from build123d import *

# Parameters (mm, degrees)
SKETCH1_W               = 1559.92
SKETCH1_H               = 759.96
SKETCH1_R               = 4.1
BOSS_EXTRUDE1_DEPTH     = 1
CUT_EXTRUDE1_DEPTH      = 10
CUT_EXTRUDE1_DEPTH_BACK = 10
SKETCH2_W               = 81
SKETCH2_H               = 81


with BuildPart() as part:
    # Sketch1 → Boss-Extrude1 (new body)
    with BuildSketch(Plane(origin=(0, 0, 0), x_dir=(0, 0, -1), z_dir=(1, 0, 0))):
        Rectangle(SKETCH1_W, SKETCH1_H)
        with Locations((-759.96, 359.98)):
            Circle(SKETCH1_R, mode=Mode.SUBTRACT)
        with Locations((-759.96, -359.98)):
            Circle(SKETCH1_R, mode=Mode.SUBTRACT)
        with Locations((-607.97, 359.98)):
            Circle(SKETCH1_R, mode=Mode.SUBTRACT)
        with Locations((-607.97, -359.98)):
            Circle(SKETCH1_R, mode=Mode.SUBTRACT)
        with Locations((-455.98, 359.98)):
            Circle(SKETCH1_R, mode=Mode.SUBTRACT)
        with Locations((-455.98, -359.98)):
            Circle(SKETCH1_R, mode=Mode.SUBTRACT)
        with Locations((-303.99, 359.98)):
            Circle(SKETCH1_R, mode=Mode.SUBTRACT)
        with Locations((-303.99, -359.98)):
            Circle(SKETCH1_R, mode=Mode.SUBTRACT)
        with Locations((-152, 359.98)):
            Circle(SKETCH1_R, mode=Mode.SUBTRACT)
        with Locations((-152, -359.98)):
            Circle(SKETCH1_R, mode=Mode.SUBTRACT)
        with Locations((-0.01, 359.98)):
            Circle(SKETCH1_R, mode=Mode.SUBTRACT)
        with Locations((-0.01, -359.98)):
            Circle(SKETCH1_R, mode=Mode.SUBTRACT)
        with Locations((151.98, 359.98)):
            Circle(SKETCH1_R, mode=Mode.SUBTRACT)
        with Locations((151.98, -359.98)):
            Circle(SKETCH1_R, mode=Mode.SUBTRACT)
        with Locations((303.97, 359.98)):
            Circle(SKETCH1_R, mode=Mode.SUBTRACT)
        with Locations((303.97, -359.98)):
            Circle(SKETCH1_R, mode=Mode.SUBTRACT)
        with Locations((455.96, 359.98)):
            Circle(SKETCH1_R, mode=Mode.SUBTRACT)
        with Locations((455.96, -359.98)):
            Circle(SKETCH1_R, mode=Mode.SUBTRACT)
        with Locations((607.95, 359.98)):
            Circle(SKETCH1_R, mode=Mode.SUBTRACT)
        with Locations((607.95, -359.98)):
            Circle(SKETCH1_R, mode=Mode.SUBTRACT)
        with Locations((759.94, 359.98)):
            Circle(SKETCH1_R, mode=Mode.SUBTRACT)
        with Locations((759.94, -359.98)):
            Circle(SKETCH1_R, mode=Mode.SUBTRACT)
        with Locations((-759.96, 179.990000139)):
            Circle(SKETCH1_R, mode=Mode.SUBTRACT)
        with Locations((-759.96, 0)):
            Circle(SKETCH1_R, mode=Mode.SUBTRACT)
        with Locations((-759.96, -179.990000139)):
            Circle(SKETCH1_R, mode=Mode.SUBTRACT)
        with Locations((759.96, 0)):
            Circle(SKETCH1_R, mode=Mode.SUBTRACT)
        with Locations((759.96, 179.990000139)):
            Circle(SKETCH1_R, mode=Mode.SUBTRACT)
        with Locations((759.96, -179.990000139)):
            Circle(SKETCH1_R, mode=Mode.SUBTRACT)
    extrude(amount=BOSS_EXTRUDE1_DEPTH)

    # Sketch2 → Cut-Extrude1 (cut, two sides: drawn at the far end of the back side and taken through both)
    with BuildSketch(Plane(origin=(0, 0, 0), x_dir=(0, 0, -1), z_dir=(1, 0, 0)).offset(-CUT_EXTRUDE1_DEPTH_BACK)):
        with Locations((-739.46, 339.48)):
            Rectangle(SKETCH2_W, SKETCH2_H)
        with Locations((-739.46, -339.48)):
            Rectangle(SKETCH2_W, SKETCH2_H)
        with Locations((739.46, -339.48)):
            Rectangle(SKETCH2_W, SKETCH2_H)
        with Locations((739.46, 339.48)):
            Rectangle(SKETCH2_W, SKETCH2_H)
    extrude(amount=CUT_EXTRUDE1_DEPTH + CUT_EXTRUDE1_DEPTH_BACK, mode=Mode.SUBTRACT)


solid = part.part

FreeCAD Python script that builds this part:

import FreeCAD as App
import Part
import Sketcher


def add_polygon(sketch, points):
    """Adds a closed chain of lines whose ends are joined by coincident constraints."""
    first, n = sketch.GeometryCount, len(points)
    for a, b in zip(points, points[1:] + points[:1]):
        sketch.addGeometry(Part.LineSegment(App.Vector(*a, 0), App.Vector(*b, 0)), False)
    for i in range(n):
        sketch.addConstraint(Sketcher.Constraint("Coincident", first + i, 2, first + (i + 1) % n, 1))

doc = App.newDocument("Part")
params = doc.addObject("Spreadsheet::Sheet", "Params")
for row, (alias, value) in enumerate([
    ("sketch1_diameter", "8.2 mm"),
    ("sketch1_width", "759.96 mm"),
    ("sketch1_height", "1559.92 mm"),
    ("pad1_length", "1 mm"),
    ("sketch2_width", "81 mm"),
], start=1):
    params.set(f"A{row}", alias)
    params.set(f"B{row}", "=" + value)
    params.setAlias(f"B{row}", alias)

body = doc.addObject("PartDesign::Body", "Body")

# Sketch on YZ plane
sketch1 = body.newObject("Sketcher::SketchObject", "Sketch")
sketch1.AttachmentSupport = (doc.getObject("YZ_Plane"), [""])
sketch1.MapMode = "FlatFace"
add_polygon(sketch1, [(380, 780), (-380, 780), (-380, -780), (380, -780)])  # lines 0-3
sketch1.addGeometry(Part.Circle(App.Vector(-360, 760, 0), App.Vector(0, 0, 1), 4.1), False)  # 4
sketch1.addGeometry(Part.Circle(App.Vector(-360, 608, 0), App.Vector(0, 0, 1), 4.1), False)  # 5
sketch1.addGeometry(Part.Circle(App.Vector(-360, 456, 0), App.Vector(0, 0, 1), 4.1), False)  # 6
sketch1.addGeometry(Part.Circle(App.Vector(-360, 304, 0), App.Vector(0, 0, 1), 4.1), False)  # 7
sketch1.addGeometry(Part.Circle(App.Vector(-360, 152, 0), App.Vector(0, 0, 1), 4.1), False)  # 8
sketch1.addGeometry(Part.Circle(App.Vector(-360, 0, 0), App.Vector(0, 0, 1), 4.1), False)  # 9
sketch1.addGeometry(Part.Circle(App.Vector(-180, 760, 0), App.Vector(0, 0, 1), 4.1), False)  # 10
sketch1.addGeometry(Part.Circle(App.Vector(-360, -152, 0), App.Vector(0, 0, 1), 4.1), False)  # 11
sketch1.addGeometry(Part.Circle(App.Vector(-360, -304, 0), App.Vector(0, 0, 1), 4.1), False)  # 12
sketch1.addGeometry(Part.Circle(App.Vector(-360, -456, 0), App.Vector(0, 0, 1), 4.1), False)  # 13
sketch1.addGeometry(Part.Circle(App.Vector(-360, -608, 0), App.Vector(0, 0, 1), 4.1), False)  # 14
sketch1.addGeometry(Part.Circle(App.Vector(-360, -759.9, 0), App.Vector(0, 0, 1), 4.1), False)  # 15
sketch1.addGeometry(Part.Circle(App.Vector(-180, -760, 0), App.Vector(0, 0, 1), 4.1), False)  # 16
sketch1.addGeometry(Part.Circle(App.Vector(0, 760, 0), App.Vector(0, 0, 1), 4.1), False)  # 17
sketch1.addGeometry(Part.Circle(App.Vector(180, 760, 0), App.Vector(0, 0, 1), 4.1), False)  # 18
sketch1.addGeometry(Part.Circle(App.Vector(360, 760, 0), App.Vector(0, 0, 1), 4.1), False)  # 19
sketch1.addGeometry(Part.Circle(App.Vector(360, 608, 0), App.Vector(0, 0, 1), 4.1), False)  # 20
sketch1.addGeometry(Part.Circle(App.Vector(360, 456, 0), App.Vector(0, 0, 1), 4.1), False)  # 21
sketch1.addGeometry(Part.Circle(App.Vector(360, 304, 0), App.Vector(0, 0, 1), 4.1), False)  # 22
sketch1.addGeometry(Part.Circle(App.Vector(360, 152, 0), App.Vector(0, 0, 1), 4.1), False)  # 23
sketch1.addGeometry(Part.Circle(App.Vector(360, 0, 0), App.Vector(0, 0, 1), 4.1), False)  # 24
sketch1.addGeometry(Part.Circle(App.Vector(0, -760, 0), App.Vector(0, 0, 1), 4.1), False)  # 25
sketch1.addGeometry(Part.Circle(App.Vector(180, -760, 0), App.Vector(0, 0, 1), 4.1), False)  # 26
sketch1.addGeometry(Part.Circle(App.Vector(360, -152, 0), App.Vector(0, 0, 1), 4.1), False)  # 27
sketch1.addGeometry(Part.Circle(App.Vector(360, -304, 0), App.Vector(0, 0, 1), 4.1), False)  # 28
sketch1.addGeometry(Part.Circle(App.Vector(360, -456, 0), App.Vector(0, 0, 1), 4.1), False)  # 29
sketch1.addGeometry(Part.Circle(App.Vector(360, -608, 0), App.Vector(0, 0, 1), 4.1), False)  # 30
sketch1.addGeometry(Part.Circle(App.Vector(360, -759.9, 0), App.Vector(0, 0, 1), 4.1), False)  # 31
sketch1.addConstraint([
    Sketcher.Constraint("Horizontal", 0),
    Sketcher.Constraint("Vertical", 1),
    Sketcher.Constraint("Horizontal", 2),
    Sketcher.Constraint("Vertical", 3),
    Sketcher.Constraint("Equal", 4, 5),
    Sketcher.Constraint("Equal", 5, 6),
    Sketcher.Constraint("Equal", 6, 7),
    Sketcher.Constraint("Equal", 7, 8),
    Sketcher.Constraint("Equal", 8, 9),
    Sketcher.Constraint("Equal", 9, 10),
    Sketcher.Constraint("Equal", 10, 11),
    Sketcher.Constraint("Equal", 11, 12),
    Sketcher.Constraint("Equal", 12, 13),
    Sketcher.Constraint("Equal", 13, 14),
    Sketcher.Constraint("Equal", 14, 15),
    Sketcher.Constraint("Equal", 15, 16),
    Sketcher.Constraint("Equal", 16, 17),
    Sketcher.Constraint("Equal", 17, 18),
    Sketcher.Constraint("Equal", 18, 19),
    Sketcher.Constraint("Equal", 19, 20),
    Sketcher.Constraint("Equal", 20, 21),
    Sketcher.Constraint("Equal", 21, 22),
    Sketcher.Constraint("Equal", 22, 23),
    Sketcher.Constraint("Equal", 23, 24),
    Sketcher.Constraint("Equal", 24, 25),
    Sketcher.Constraint("Equal", 25, 26),
    Sketcher.Constraint("Equal", 26, 27),
    Sketcher.Constraint("Equal", 27, 28),
    Sketcher.Constraint("Equal", 28, 29),
    Sketcher.Constraint("Equal", 29, 30),
    Sketcher.Constraint("Equal", 30, 31),
    Sketcher.Constraint("Symmetric", 16, 3, 18, 3, -1, 1),
    Sketcher.Constraint("Symmetric", 17, 3, 25, 3, -1, 1),
    Sketcher.Constraint("Symmetric", 10, 3, 26, 3, -1, 1),
    Sketcher.Constraint("Symmetric", 0, 2, 2, 2, -1, 1),
    Sketcher.Constraint("Symmetric", 10, 3, 18, 3, -2),
    Sketcher.Constraint("Symmetric", 4, 3, 19, 3, -2),
    Sketcher.Constraint("Symmetric", 5, 3, 20, 3, -2),
    Sketcher.Constraint("Symmetric", 6, 3, 21, 3, -2),
    Sketcher.Constraint("Symmetric", 7, 3, 22, 3, -2),
    Sketcher.Constraint("Symmetric", 8, 3, 23, 3, -2),
    Sketcher.Constraint("Symmetric", 9, 3, 24, 3, -2),
    Sketcher.Constraint("Symmetric", 11, 3, 27, 3, -2),
    Sketcher.Constraint("Symmetric", 12, 3, 28, 3, -2),
    Sketcher.Constraint("Symmetric", 13, 3, 29, 3, -2),
    Sketcher.Constraint("Symmetric", 14, 3, 30, 3, -2),
    Sketcher.Constraint("Symmetric", 15, 3, 31, 3, -2),
    Sketcher.Constraint("PointOnObject", 17, 3, -2),
    Sketcher.Constraint("Horizontal", 4, 3, 10, 3),
    Sketcher.Constraint("Horizontal", 10, 3, 17, 3),
    Sketcher.Constraint("Vertical", 4, 3, 5, 3),
    Sketcher.Constraint("Vertical", 5, 3, 6, 3),
    Sketcher.Constraint("Vertical", 6, 3, 7, 3),
    Sketcher.Constraint("Vertical", 7, 3, 8, 3),
    Sketcher.Constraint("Vertical", 8, 3, 9, 3),
    Sketcher.Constraint("Vertical", 9, 3, 11, 3),
    Sketcher.Constraint("Vertical", 11, 3, 12, 3),
    Sketcher.Constraint("Vertical", 12, 3, 13, 3),
    Sketcher.Constraint("Vertical", 13, 3, 14, 3),
    Sketcher.Constraint("Vertical", 14, 3, 15, 3),
    Sketcher.Constraint("Diameter", 4, 8.2),
    Sketcher.Constraint("DistanceY", -1, 1, 8, 3, 152.0),
    Sketcher.Constraint("DistanceY", 16, 3, 13, 3, 304.0),
    Sketcher.Constraint("DistanceX", 0, 2, 4, 3, 20.0),
    Sketcher.Constraint("DistanceY", 4, 3, 0, 2, 20.0),
    Sketcher.Constraint("DistanceX", 0, 2, 0, 1, 759.96),
    Sketcher.Constraint("DistanceY", 1, 2, 1, 1, 1559.92),
    Sketcher.Constraint("DistanceY", -1, 1, 5, 3, 607.97),
    Sketcher.Constraint("DistanceY", -1, 1, 6, 3, 455.98),
    Sketcher.Constraint("DistanceY", -1, 1, 7, 3, 303.99),
    Sketcher.Constraint("DistanceY", -1, 1, 9, 3, 0.01),
    Sketcher.Constraint("DistanceX", 10, 3, -1, 1, 179.99),
    Sketcher.Constraint("DistanceY", 11, 3, -1, 1, 151.98),
    Sketcher.Constraint("DistanceY", 12, 3, -1, 1, 303.97),
    Sketcher.Constraint("DistanceY", 14, 3, -1, 1, 607.95),
    Sketcher.Constraint("DistanceY", 15, 3, -1, 1, 759.94),
])
sketch1.setExpression("Constraints[64]", "Params.sketch1_diameter")
sketch1.setExpression("Constraints[69]", "Params.sketch1_width")
sketch1.setExpression("Constraints[70]", "Params.sketch1_height")
pad1 = body.newObject("PartDesign::Pad", "Pad")
pad1.Profile = sketch1
pad1.setExpression("Length", "Params.pad1_length")

# Sketch on YZ plane
sketch2 = body.newObject("Sketcher::SketchObject", "Sketch001")
sketch2.AttachmentSupport = (doc.getObject("YZ_Plane"), [""])
sketch2.MapMode = "FlatFace"
add_polygon(sketch2, [(380, 780), (299, 780), (299, 699), (380, 699)])  # lines 0-3
add_polygon(sketch2, [(-299, 780), (-380, 780), (-380, 699), (-299, 699)])  # lines 4-7
add_polygon(sketch2, [(-299, -699), (-380, -699), (-380, -780), (-299, -780)])  # lines 8-11
add_polygon(sketch2, [(380, -699), (299, -699), (299, -780), (380, -780)])  # lines 12-15
sketch2.addConstraint([
    Sketcher.Constraint("Horizontal", 0),
    Sketcher.Constraint("Vertical", 1),
    Sketcher.Constraint("Horizontal", 2),
    Sketcher.Constraint("Vertical", 3),
    Sketcher.Constraint("Horizontal", 4),
    Sketcher.Constraint("Vertical", 5),
    Sketcher.Constraint("Horizontal", 6),
    Sketcher.Constraint("Vertical", 7),
    Sketcher.Constraint("Horizontal", 8),
    Sketcher.Constraint("Vertical", 9),
    Sketcher.Constraint("Horizontal", 10),
    Sketcher.Constraint("Vertical", 11),
    Sketcher.Constraint("Horizontal", 12),
    Sketcher.Constraint("Vertical", 13),
    Sketcher.Constraint("Horizontal", 14),
    Sketcher.Constraint("Vertical", 15),
    Sketcher.Constraint("Symmetric", 2, 2, 8, 2, -1, 1),
    Sketcher.Constraint("Symmetric", 0, 2, 10, 2, -1, 1),
    Sketcher.Constraint("Symmetric", 6, 2, 12, 2, -1, 1),
    Sketcher.Constraint("Symmetric", 4, 2, 14, 2, -1, 1),
    Sketcher.Constraint("Symmetric", 3, 2, 4, 2, -2),
    Sketcher.Constraint("Symmetric", 1, 2, 6, 2, -2),
    Sketcher.Constraint("Equal", 14, 1),
    Sketcher.Constraint("DistanceX", 0, 2, 0, 1, 81.0),
    Sketcher.Constraint("DistanceX", -1, 1, 0, 2, 298.98),
    Sketcher.Constraint("DistanceY", -1, 1, 0, 2, 779.96),
])
sketch2.setExpression("Constraints[39]", "Params.sketch2_width")
pocket1 = body.newObject("PartDesign::Pocket", "Pocket")
pocket1.Profile = sketch2
pocket1.Type = "ThroughAll"
pocket1.Midplane = True

doc.recompute()
